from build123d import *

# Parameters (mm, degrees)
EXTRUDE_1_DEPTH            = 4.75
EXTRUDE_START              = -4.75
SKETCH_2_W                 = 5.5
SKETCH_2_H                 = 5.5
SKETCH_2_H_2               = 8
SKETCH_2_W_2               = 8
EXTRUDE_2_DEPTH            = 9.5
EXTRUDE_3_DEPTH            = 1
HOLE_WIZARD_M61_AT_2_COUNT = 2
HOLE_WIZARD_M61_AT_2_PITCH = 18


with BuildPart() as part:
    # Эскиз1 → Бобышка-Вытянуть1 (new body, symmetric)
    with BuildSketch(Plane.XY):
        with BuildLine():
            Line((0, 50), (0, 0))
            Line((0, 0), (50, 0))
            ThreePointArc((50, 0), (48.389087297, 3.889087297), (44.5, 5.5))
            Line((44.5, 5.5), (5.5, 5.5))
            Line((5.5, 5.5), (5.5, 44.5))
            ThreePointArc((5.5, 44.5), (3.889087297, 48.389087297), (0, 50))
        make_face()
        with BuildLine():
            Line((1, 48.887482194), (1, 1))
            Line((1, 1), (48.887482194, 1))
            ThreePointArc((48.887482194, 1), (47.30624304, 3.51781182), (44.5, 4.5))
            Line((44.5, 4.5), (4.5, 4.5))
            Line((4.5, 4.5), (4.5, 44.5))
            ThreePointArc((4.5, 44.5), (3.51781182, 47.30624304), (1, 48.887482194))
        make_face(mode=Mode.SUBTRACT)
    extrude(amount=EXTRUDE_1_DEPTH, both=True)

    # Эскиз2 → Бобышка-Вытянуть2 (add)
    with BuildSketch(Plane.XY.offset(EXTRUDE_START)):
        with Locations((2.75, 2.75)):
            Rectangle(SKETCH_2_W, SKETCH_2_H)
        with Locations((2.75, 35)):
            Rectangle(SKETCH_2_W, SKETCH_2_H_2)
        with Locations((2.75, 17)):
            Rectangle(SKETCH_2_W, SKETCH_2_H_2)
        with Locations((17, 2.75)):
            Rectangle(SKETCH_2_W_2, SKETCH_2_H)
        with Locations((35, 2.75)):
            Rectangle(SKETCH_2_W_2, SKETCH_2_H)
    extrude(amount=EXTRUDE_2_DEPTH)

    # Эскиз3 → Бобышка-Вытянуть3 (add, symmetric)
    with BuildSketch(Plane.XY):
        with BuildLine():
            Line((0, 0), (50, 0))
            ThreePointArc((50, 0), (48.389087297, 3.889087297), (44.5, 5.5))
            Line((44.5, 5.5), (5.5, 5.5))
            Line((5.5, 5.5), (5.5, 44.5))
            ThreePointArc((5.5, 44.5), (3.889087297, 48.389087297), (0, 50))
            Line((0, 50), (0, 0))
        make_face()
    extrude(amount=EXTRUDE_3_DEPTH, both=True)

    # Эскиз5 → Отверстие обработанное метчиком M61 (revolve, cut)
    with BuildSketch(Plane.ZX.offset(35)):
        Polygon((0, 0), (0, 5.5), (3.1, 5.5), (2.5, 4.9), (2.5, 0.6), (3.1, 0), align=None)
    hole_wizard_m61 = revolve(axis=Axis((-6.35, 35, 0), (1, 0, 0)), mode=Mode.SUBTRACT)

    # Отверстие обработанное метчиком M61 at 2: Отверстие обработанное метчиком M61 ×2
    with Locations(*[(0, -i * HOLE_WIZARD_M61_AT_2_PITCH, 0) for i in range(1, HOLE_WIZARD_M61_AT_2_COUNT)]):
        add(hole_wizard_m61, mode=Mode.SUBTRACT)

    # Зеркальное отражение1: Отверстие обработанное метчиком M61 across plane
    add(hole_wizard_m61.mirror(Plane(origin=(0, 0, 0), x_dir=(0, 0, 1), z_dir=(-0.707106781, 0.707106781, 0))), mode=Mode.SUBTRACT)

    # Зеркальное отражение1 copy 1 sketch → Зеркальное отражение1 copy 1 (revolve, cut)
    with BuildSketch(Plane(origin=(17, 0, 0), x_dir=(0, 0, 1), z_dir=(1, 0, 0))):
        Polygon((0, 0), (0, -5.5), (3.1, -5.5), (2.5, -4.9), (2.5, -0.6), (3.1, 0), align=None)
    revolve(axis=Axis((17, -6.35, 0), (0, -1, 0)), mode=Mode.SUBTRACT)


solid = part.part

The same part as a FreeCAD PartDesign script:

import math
import FreeCAD as App
import Part
import Sketcher
Q = App.Units.Quantity


def add_polygon(sketch, points):
    """Adds a closed chain of lines whose ends are joined by coincident constraints."""
    first, n = sketch.GeometryCount, len(points)
    for a, b in zip(points, points[1:] + points[:1]):
        sketch.addGeometry(Part.LineSegment(App.Vector(*a, 0), App.Vector(*b, 0)), False)
    for i in range(n):
        sketch.addConstraint(Sketcher.Constraint("Coincident", first + i, 2, first + (i + 1) % n, 1))

doc = App.newDocument("Part")
body = doc.addObject("PartDesign::Body", "Body")

# Sketch on XY plane
sketch1 = body.newObject("Sketcher::SketchObject", "Sketch")
sketch1.AttachmentSupport = (doc.getObject("XY_Plane"), [""])
sketch1.MapMode = "FlatFace"
sketch1.addGeometry(Part.LineSegment(App.Vector(0, 50, 0), App.Vector(0, 0, 0)), False)
sketch1.addGeometry(Part.LineSegment(App.Vector(0, 0, 0), App.Vector(50, 0, 0)), False)
sketch1.addGeometry(Part.ArcOfCircle(Part.Circle(App.Vector(44.5, 0, 0), App.Vector(0, 0, 1), 5.5), math.radians(0), math.radians(90)), False)
sketch1.addGeometry(Part.LineSegment(App.Vector(44.5, 5.5, 0), App.Vector(5.5, 5.5, 0)), False)
sketch1.addGeometry(Part.LineSegment(App.Vector(5.5, 5.5, 0), App.Vector(5.5, 44.5, 0)), False)
sketch1.addGeometry(Part.ArcOfCircle(Part.Circle(App.Vector(0, 44.5, 0), App.Vector(0, 0, 1), 5.5), math.radians(0), math.radians(90)), False)
sketch1.addGeometry(Part.LineSegment(App.Vector(1, 1, 0), App.Vector(1, 48.9, 0)), False)
sketch1.addGeometry(Part.ArcOfCircle(Part.Circle(App.Vector(0, 44.5, 0), App.Vector(0, 0, 1), 4.5), math.radians(0), math.radians(77)), False)
sketch1.addGeometry(Part.LineSegment(App.Vector(4.5, 44.5, 0), App.Vector(4.5, 4.5, 0)), False)
sketch1.addGeometry(Part.LineSegment(App.Vector(4.5, 4.5, 0), App.Vector(44.5, 4.5, 0)), False)
sketch1.addGeometry(Part.ArcOfCircle(Part.Circle(App.Vector(44.5, 0, 0), App.Vector(0, 0, 1), 4.5), math.radians(13), math.radians(90)), False)
sketch1.addGeometry(Part.LineSegment(App.Vector(48.9, 1, 0), App.Vector(1, 1, 0)), False)
sketch1.addConstraint(Sketcher.Constraint("Coincident", 0, 2, 1, 1))
sketch1.addConstraint(Sketcher.Constraint("Coincident", 1, 2, 2, 1))
sketch1.addConstraint(Sketcher.Constraint("Tangent", 2, 2, 3, 1))
sketch1.addConstraint(Sketcher.Constraint("Coincident", 3, 2, 4, 1))
sketch1.addConstraint(Sketcher.Constraint("Tangent", 4, 2, 5, 1))
sketch1.addConstraint(Sketcher.Constraint("Coincident", 5, 2, 0, 1))
sketch1.addConstraint(Sketcher.Constraint("Coincident", 6, 2, 7, 2))
sketch1.addConstraint(Sketcher.Constraint("Tangent", 7, 1, 8, 1))
sketch1.addConstraint(Sketcher.Constraint("Coincident", 8, 2, 9, 1))
sketch1.addConstraint(Sketcher.Constraint("Tangent", 9, 2, 10, 2))
sketch1.addConstraint(Sketcher.Constraint("Coincident", 10, 1, 11, 1))
sketch1.addConstraint(Sketcher.Constraint("Coincident", 11, 2, 6, 1))
sketch1.addConstraint(Sketcher.Constraint("Vertical", 0))
sketch1.addConstraint(Sketcher.Constraint("Horizontal", 1))
sketch1.addConstraint(Sketcher.Constraint("Horizontal", 3))
sketch1.addConstraint(Sketcher.Constraint("Vertical", 4))
sketch1.addConstraint(Sketcher.Constraint("Vertical", 6))
sketch1.addConstraint(Sketcher.Constraint("Vertical", 8))
sketch1.addConstraint(Sketcher.Constraint("Horizontal", 9))
sketch1.addConstraint(Sketcher.Constraint("Horizontal", 11))
sketch1.addConstraint(Sketcher.Constraint("Coincident", 0, 2, -1, 1))
sketch1.addConstraint(Sketcher.Constraint("Coincident", 7, 3, 5, 3))
sketch1.addConstraint(Sketcher.Constraint("Coincident", 10, 3, 2, 3))
sketch1.addConstraint(Sketcher.Constraint("Equal", 2, 5))
sketch1.addConstraint(Sketcher.Constraint("Equal", 7, 10))
sketch1.addConstraint(Sketcher.Constraint("PointOnObject", 2, 3, -1))
sketch1.addConstraint(Sketcher.Constraint("PointOnObject", 5, 3, -2))
sketch1.addConstraint(Sketcher.Constraint("Equal", 1, 0))
sketch1.addConstraint(Sketcher.Constraint("Equal", 11, 6))
sketch1.addConstraint(Sketcher.Constraint("Radius", 2, Q("5.5 mm")))
sketch1.addConstraint(Sketcher.Constraint("Radius", 7, Q("4.5 mm")))
sketch1.addConstraint(Sketcher.Constraint("DistanceX", 1, 1, 1, 2, Q("50 mm")))
sketch1.addConstraint(Sketcher.Constraint("DistanceX", -1, 1, 6, 2, Q("1 mm")))
pad1 = body.newObject("PartDesign::Pad", "Pad")
pad1.Profile = sketch1
pad1.Length = 9.5
pad1.Midplane = True

# Sketch on XY plane
sketch2 = body.newObject("Sketcher::SketchObject", "Sketch001")
sketch2.AttachmentSupport = (doc.getObject("XY_Plane"), [""])
sketch2.MapMode = "FlatFace"
sketch2.AttachmentOffset = App.Placement(App.Vector(0, 0, -4.75), App.Rotation())
add_polygon(sketch2, [(0, 6), (0, 0), (6, 0), (6, 6)])  # lines 0-3
add_polygon(sketch2, [(0, 39), (0, 31), (6, 31), (6, 39)])  # lines 4-7
add_polygon(sketch2, [(0, 21), (0, 13), (6, 13), (6, 21)])  # lines 8-11
add_polygon(sketch2, [(13, 6), (13, 0), (21, 0), (21, 6)])  # lines 12-15
add_polygon(sketch2, [(31, 6), (31, 0), (39, 0), (39, 6)])  # lines 16-19
sketch2.addConstraint(Sketcher.Constraint("Vertical", 0))
sketch2.addConstraint(Sketcher.Constraint("Horizontal", 1))
sketch2.addConstraint(Sketcher.Constraint("Vertical", 2))
sketch2.addConstraint(Sketcher.Constraint("Horizontal", 3))
sketch2.addConstraint(Sketcher.Constraint("Vertical", 4))
sketch2.addConstraint(Sketcher.Constraint("Horizontal", 5))
sketch2.addConstraint(Sketcher.Constraint("Vertical", 6))
sketch2.addConstraint(Sketcher.Constraint("Horizontal", 7))
sketch2.addConstraint(Sketcher.Constraint("Vertical", 8))
sketch2.addConstraint(Sketcher.Constraint("Horizontal", 9))
sketch2.addConstraint(Sketcher.Constraint("Vertical", 10))
sketch2.addConstraint(Sketcher.Constraint("Horizontal", 11))
sketch2.addConstraint(Sketcher.Constraint("Vertical", 12))
sketch2.addConstraint(Sketcher.Constraint("Horizontal", 13))
sketch2.addConstraint(Sketcher.Constraint("Vertical", 14))
sketch2.addConstraint(Sketcher.Constraint("Horizontal", 15))
sketch2.addConstraint(Sketcher.Constraint("Vertical", 16))
sketch2.addConstraint(Sketcher.Constraint("Horizontal", 17))
sketch2.addConstraint(Sketcher.Constraint("Vertical", 18))
sketch2.addConstraint(Sketcher.Constraint("Horizontal", 19))
sketch2.addConstraint(Sketcher.Constraint("Coincident", 0, 2, -1, 1))
sketch2.addConstraint(Sketcher.Constraint("PointOnObject", 4, 2, -2))
sketch2.addConstraint(Sketcher.Constraint("PointOnObject", 8, 2, -2))
sketch2.addConstraint(Sketcher.Constraint("PointOnObject", 12, 2, -1))
sketch2.addConstraint(Sketcher.Constraint("PointOnObject", 16, 2, -1))
sketch2.addConstraint(Sketcher.Constraint("Horizontal", 3, 2, 14, 2))
sketch2.addConstraint(Sketcher.Constraint("Horizontal", 15, 2, 18, 2))
sketch2.addConstraint(Sketcher.Constraint("Vertical", 2, 2, 5, 2))
sketch2.addConstraint(Sketcher.Constraint("Vertical", 6, 2, 9, 2))
sketch2.addConstraint(Sketcher.Constraint("Equal", 15, 17))
sketch2.addConstraint(Sketcher.Constraint("Equal", 11, 0))
sketch2.addConstraint(Sketcher.Constraint("Equal", 19, 4))
sketch2.addConstraint(Sketcher.Constraint("Equal", 6, 8))
sketch2.addConstraint(Sketcher.Constraint("DistanceX", 13, 1, 13, 2, Q("8 mm")))
sketch2.addConstraint(Sketcher.Constraint("DistanceX", 1, 1, 1, 2, Q("5.5 mm")))
sketch2.addConstraint(Sketcher.Constraint("DistanceY", -1, 1, 4, 2, Q("31 mm")))
sketch2.addConstraint(Sketcher.Constraint("DistanceY", -1, 1, 8, 2, Q("13 mm")))
sketch2.addConstraint(Sketcher.Constraint("DistanceX", -1, 1, 12, 2, Q("13 mm")))
sketch2.addConstraint(Sketcher.Constraint("DistanceX", -1, 1, 16, 2, Q("31 mm")))
pad2 = body.newObject("PartDesign::Pad", "Pad001")
pad2.Profile = sketch2
pad2.Length = 9.5

# Sketch on XY plane
sketch3 = body.newObject("Sketcher::SketchObject", "Sketch002")
sketch3.AttachmentSupport = (doc.getObject("XY_Plane"), [""])
sketch3.MapMode = "FlatFace"
sketch3.addGeometry(Part.LineSegment(App.Vector(0, 0, 0), App.Vector(50, 0, 0)), False)
sketch3.addGeometry(Part.ArcOfCircle(Part.Circle(App.Vector(45, 0, 0), App.Vector(0, 0, 1), 5), math.radians(0), math.radians(90)), False)
sketch3.addGeometry(Part.LineSegment(App.Vector(44, 6, 0), App.Vector(6, 6, 0)), False)
sketch3.addGeometry(Part.LineSegment(App.Vector(6, 6, 0), App.Vector(6, 44, 0)), False)
sketch3.addGeometry(Part.ArcOfCircle(Part.Circle(App.Vector(0, 45, 0), App.Vector(0, 0, 1), 5), math.radians(0), math.radians(90)), False)
sketch3.addGeometry(Part.LineSegment(App.Vector(0, 50, 0), App.Vector(0, 0, 0)), False)
sketch3.addConstraint(Sketcher.Constraint("Coincident", 0, 2, 1, 1))
sketch3.addConstraint(Sketcher.Constraint("Tangent", 1, 2, 2, 1))
sketch3.addConstraint(Sketcher.Constraint("Coincident", 2, 2, 3, 1))
sketch3.addConstraint(Sketcher.Constraint("Tangent", 3, 2, 4, 1))
sketch3.addConstraint(Sketcher.Constraint("Coincident", 4, 2, 5, 1))
sketch3.addConstraint(Sketcher.Constraint("Coincident", 5, 2, 0, 1))
sketch3.addConstraint(Sketcher.Constraint("Horizontal", 0))
sketch3.addConstraint(Sketcher.Constraint("Horizontal", 2))
sketch3.addConstraint(Sketcher.Constraint("Vertical", 3))
sketch3.addConstraint(Sketcher.Constraint("Vertical", 5))
sketch3.addConstraint(Sketcher.Constraint("Coincident", 5, 2, -1, 1))
sketch3.addConstraint(Sketcher.Constraint("Equal", 1, 4))
sketch3.addConstraint(Sketcher.Constraint("PointOnObject", 1, 3, -1))
sketch3.addConstraint(Sketcher.Constraint("PointOnObject", 4, 3, -2))
sketch3.addConstraint(Sketcher.Constraint("Equal", 2, 3))
sketch3.addConstraint(Sketcher.Constraint("Radius", 1, Q("5.5 mm")))
sketch3.addConstraint(Sketcher.Constraint("DistanceX", 0, 1, 0, 2, Q("50 mm")))
pad3 = body.newObject("PartDesign::Pad", "Pad002")
pad3.Profile = sketch3
pad3.Length = 2
pad3.Midplane = True

# Sketch on XZ plane
sketch4 = body.newObject("Sketcher::SketchObject", "Sketch003")
sketch4.AttachmentSupport = (doc.getObject("XZ_Plane"), [""])
sketch4.MapMode = "FlatFace"
sketch4.AttachmentOffset = App.Placement(App.Vector(0, 0, -35), App.Rotation())
add_polygon(sketch4, [(5.5, 0), (0, 0), (0, 3.1), (0.6, 2.5), (4.9, 2.5), (5.5, 3.1)])  # lines 0-5
sketch4.addConstraint(Sketcher.Constraint("Horizontal", 0))
sketch4.addConstraint(Sketcher.Constraint("Vertical", 1))
sketch4.addConstraint(Sketcher.Constraint("Horizontal", 3))
sketch4.addConstraint(Sketcher.Constraint("Vertical", 5))
sketch4.addConstraint(Sketcher.Constraint("Coincident", 0, 2, -1, 1))
sketch4.addConstraint(Sketcher.Constraint("Perpendicular", 2, 4))
sketch4.addConstraint(Sketcher.Constraint("Horizontal", 1, 2, 4, 2))
sketch4.addConstraint(Sketcher.Constraint("Equal", 2, 4))
sketch4.addConstraint(Sketcher.Constraint("DistanceX", 0, 2, 0, 1, Q("5.5 mm")))
sketch4.addConstraint(Sketcher.Constraint("DistanceX", 3, 1, 3, 2, Q("4.3 mm")))
sketch4.addConstraint(Sketcher.Constraint("DistanceY", 1, 1, 1, 2, Q("3.1 mm")))
groove = body.newObject("PartDesign::Groove", "Groove")
groove.Profile = sketch4
groove.ReferenceAxis = (sketch4, ["H_Axis"])
groove.Angle = 360
doc.recompute()

linearpattern = body.newObject("PartDesign::LinearPattern", "LinearPattern")
linearpattern.Originals = [groove]
linearpattern.Direction = (doc.getObject("Y_Axis"), [""])
linearpattern.Mode = "offset"
linearpattern.Offset = 18
linearpattern.Occurrences = 2
linearpattern.Reversed = True
body.Tip = linearpattern
doc.recompute()

datumplane = body.newObject("PartDesign::Plane", "DatumPlane")
datumplane.Placement = App.Placement(App.Vector(0, 0, 0), App.Rotation(App.Vector(0.707106781, 0.707106781, 0), App.Vector(0, 0, -1), App.Vector(-0.707106781, 0.707106781, 0), "ZXY"))
mirrored = body.newObject("PartDesign::Mirrored", "Mirrored")
mirrored.Originals = [groove]
mirrored.MirrorPlane = (datumplane, [""])
body.Tip = mirrored

# Sketch on YZ plane
sketch5 = body.newObject("Sketcher::SketchObject", "Sketch004")
sketch5.AttachmentSupport = (doc.getObject("YZ_Plane"), [""])
sketch5.MapMode = "FlatFace"
sketch5.AttachmentOffset = App.Placement(App.Vector(0, 0, 17), App.Rotation())
add_polygon(sketch5, [(0, 0), (5.5, 0), (5.5, 3.1), (4.9, 2.5), (0.6, 2.5), (0, 3.1)])  # lines 0-5
sketch5.addConstraint(Sketcher.Constraint("Horizontal", 0))
sketch5.addConstraint(Sketcher.Constraint("Vertical", 1))
sketch5.addConstraint(Sketcher.Constraint("Horizontal", 3))
sketch5.addConstraint(Sketcher.Constraint("Vertical", 5))
sketch5.addConstraint(Sketcher.Constraint("Coincident", 5, 2, -1, 1))
sketch5.addConstraint(Sketcher.Constraint("Perpendicular", 2, 4))
sketch5.addConstraint(Sketcher.Constraint("Horizontal", 1, 2, 4, 2))
sketch5.addConstraint(Sketcher.Constraint("Equal", 2, 4))
sketch5.addConstraint(Sketcher.Constraint("DistanceX", 0, 1, 0, 2, Q("5.5 mm")))
sketch5.addConstraint(Sketcher.Constraint("DistanceX", 3, 2, 3, 1, Q("4.3 mm")))
sketch5.addConstraint(Sketcher.Constraint("DistanceY", 1, 1, 1, 2, Q("3.1 mm")))
groove2 = body.newObject("PartDesign::Groove", "Groove001")
groove2.Profile = sketch5
groove2.ReferenceAxis = (sketch5, ["H_Axis"])
groove2.Angle = 360

doc.recompute()
